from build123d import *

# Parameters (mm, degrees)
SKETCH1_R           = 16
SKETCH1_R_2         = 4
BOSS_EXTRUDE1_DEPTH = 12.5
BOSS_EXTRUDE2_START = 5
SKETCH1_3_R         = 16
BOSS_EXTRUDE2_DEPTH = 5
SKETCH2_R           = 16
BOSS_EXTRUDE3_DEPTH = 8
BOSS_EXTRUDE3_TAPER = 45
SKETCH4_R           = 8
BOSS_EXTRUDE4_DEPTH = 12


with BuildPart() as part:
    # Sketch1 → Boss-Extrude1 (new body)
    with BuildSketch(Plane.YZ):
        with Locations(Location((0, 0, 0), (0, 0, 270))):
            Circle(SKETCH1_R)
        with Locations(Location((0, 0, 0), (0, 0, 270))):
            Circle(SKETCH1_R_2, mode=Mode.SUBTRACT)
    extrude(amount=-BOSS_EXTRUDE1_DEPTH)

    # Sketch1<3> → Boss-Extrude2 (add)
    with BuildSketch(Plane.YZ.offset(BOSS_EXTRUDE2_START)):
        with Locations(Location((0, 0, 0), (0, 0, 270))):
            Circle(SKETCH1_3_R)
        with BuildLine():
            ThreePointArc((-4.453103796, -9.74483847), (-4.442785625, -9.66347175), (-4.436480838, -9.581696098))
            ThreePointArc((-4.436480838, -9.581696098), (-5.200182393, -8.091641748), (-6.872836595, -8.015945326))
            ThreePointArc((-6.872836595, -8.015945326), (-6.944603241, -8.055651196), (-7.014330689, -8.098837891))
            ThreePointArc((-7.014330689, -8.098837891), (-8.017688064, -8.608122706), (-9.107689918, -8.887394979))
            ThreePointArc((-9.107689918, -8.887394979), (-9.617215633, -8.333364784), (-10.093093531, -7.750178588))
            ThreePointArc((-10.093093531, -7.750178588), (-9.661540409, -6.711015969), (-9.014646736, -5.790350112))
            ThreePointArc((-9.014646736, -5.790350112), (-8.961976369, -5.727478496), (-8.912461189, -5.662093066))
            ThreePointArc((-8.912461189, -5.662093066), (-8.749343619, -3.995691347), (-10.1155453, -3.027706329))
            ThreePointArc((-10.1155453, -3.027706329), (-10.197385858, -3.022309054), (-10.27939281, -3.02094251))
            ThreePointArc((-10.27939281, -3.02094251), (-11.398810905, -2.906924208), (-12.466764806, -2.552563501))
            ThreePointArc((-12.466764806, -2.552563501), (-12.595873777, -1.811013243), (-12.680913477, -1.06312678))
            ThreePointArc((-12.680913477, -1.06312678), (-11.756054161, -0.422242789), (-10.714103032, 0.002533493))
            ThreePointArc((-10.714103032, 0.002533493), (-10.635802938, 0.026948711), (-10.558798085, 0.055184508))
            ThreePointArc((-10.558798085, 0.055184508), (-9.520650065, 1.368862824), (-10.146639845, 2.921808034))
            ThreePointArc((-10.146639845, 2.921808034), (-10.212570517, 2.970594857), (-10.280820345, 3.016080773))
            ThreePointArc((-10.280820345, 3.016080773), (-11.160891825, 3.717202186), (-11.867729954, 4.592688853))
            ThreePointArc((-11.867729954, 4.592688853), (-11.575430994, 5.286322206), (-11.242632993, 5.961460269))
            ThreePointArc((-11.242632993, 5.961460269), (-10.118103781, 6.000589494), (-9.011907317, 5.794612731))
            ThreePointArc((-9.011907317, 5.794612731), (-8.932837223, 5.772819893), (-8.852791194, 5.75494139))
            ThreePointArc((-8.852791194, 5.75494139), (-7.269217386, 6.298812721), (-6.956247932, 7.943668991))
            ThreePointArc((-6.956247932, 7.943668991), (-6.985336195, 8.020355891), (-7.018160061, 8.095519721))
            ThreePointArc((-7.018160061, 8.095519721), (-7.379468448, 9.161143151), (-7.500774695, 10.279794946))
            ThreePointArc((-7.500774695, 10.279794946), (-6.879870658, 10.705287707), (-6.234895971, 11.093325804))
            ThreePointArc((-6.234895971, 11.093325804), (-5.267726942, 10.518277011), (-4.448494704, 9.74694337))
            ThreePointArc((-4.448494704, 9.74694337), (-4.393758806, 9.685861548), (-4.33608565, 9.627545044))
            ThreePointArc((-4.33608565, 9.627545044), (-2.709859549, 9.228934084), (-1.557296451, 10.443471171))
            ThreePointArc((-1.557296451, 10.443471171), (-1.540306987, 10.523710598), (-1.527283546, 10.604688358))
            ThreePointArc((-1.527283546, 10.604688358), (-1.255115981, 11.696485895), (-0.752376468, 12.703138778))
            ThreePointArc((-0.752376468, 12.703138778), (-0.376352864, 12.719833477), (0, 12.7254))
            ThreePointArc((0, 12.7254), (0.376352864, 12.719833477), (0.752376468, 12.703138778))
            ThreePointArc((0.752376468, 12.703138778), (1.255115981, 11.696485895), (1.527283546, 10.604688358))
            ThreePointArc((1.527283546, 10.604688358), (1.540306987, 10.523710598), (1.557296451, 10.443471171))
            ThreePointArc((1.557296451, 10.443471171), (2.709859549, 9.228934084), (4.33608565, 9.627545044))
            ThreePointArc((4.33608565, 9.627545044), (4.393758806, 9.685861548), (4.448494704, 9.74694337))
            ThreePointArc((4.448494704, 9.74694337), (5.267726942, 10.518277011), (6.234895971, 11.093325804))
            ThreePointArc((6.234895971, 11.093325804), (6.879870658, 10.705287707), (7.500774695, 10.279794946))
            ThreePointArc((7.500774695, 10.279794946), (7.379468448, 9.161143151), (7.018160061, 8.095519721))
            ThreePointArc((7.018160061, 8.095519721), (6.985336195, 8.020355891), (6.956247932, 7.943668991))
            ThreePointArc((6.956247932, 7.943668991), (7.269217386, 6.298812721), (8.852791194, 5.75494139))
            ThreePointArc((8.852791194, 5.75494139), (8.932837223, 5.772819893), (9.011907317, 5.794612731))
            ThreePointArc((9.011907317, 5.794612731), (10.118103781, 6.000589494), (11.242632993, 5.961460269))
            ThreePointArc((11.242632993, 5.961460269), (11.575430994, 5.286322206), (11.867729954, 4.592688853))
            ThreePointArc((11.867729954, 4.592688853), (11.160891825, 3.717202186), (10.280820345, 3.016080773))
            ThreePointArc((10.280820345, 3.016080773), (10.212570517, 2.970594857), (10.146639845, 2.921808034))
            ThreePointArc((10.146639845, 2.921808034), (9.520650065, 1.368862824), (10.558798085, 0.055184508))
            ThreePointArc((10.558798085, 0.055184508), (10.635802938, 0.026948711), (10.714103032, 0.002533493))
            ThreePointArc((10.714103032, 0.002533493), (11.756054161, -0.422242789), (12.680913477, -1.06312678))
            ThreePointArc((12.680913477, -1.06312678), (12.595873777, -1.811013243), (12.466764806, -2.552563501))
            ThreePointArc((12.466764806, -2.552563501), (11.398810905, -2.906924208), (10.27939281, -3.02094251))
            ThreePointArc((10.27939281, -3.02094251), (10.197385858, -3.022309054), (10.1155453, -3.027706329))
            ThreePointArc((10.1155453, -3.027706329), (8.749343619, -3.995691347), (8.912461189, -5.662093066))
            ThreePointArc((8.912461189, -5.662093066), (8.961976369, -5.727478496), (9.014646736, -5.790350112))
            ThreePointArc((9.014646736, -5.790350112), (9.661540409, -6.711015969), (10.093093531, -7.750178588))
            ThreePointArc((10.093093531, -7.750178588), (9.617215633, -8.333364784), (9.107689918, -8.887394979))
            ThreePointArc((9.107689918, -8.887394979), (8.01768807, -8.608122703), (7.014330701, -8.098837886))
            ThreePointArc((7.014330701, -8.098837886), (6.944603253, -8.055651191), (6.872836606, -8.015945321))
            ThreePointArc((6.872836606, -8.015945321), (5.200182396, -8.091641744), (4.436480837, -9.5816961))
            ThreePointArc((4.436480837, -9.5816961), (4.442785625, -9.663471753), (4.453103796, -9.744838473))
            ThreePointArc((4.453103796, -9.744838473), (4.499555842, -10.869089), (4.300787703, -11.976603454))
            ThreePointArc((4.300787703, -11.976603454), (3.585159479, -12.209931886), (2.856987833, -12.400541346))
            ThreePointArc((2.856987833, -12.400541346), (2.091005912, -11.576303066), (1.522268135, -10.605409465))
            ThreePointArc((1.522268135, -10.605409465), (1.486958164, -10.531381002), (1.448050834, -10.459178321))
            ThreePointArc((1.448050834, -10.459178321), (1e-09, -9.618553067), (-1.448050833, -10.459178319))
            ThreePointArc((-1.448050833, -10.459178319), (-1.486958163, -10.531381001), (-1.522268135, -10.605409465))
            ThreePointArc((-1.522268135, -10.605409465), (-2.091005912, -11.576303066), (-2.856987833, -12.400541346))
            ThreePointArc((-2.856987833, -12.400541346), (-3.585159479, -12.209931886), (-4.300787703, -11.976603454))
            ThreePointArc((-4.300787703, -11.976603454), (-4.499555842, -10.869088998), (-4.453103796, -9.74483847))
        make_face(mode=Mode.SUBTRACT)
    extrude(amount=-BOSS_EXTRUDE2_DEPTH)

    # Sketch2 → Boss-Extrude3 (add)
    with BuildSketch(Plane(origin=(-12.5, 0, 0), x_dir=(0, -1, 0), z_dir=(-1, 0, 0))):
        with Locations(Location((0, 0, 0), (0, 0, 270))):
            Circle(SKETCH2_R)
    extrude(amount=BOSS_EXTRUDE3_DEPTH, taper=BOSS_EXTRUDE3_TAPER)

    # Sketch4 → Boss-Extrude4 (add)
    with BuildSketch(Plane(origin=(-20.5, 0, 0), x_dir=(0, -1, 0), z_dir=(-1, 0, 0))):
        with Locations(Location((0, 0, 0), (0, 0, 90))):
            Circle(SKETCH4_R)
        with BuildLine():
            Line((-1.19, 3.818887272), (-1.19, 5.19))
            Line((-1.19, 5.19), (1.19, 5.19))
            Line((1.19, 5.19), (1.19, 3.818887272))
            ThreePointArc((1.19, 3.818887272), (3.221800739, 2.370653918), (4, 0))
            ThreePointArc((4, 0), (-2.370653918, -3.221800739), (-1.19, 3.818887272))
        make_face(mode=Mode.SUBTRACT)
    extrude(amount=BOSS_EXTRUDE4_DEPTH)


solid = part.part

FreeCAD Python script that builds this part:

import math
import FreeCAD as App
import Part
import Sketcher
from FreeCAD import Vector
Q = App.Units.Quantity

doc = App.newDocument("Part")
body = doc.addObject("PartDesign::Body", "Body")

# Sketch on YZ plane
sketch1 = body.newObject("Sketcher::SketchObject", "Sketch")
sketch1.AttachmentSupport = (doc.getObject("YZ_Plane"), [""])
sketch1.MapMode = "FlatFace"
sketch1.addGeometry([
    Part.Circle(Vector(0, 0, 0), Vector(0, 0, 1), 16),
    Part.Circle(Vector(0, 0, 0), Vector(0, 0, 1), 4),
], False)
sketch1.addConstraint([
    Sketcher.Constraint("Coincident", 0, 3, -1, 1),
    Sketcher.Constraint("Coincident", 1, 3, -1, 1),
    Sketcher.Constraint("Diameter", 0, Q("32 mm")),
    Sketcher.Constraint("Diameter", 1, Q("8 mm")),
])
pad1 = body.newObject("PartDesign::Pad", "Pad")
pad1.Profile = sketch1
pad1.Length = 12.5
pad1.Reversed = True

# Sketch on YZ plane
sketch2 = body.newObject("Sketcher::SketchObject", "Sketch001")
sketch2.AttachmentSupport = (doc.getObject("YZ_Plane"), [""])
sketch2.MapMode = "FlatFace"
sketch2.AttachmentOffset = App.Placement(Vector(0, 0, 5), App.Rotation())
sketch2.addGeometry([
    Part.Circle(Vector(0, 0, 0), Vector(0, 0, 1), 16),  # 0
    Part.ArcOfCircle(Part.Circle(Vector(0.64, -10.52, 0), Vector(0, 0, 1), 5.15), math.radians(171), math.radians(196)),  # 1
    Part.ArcOfCircle(Part.Circle(Vector(-6.1, -9.49, 0), Vector(0, 0, 1), 1.67), math.radians(-8.64), math.radians(-3)),  # 2
    Part.ArcOfCircle(Part.Circle(Vector(-6.1, -9.49, 0), Vector(0, 0, 1), 1.67), math.radians(-3), math.radians(118)),  # 3
    Part.ArcOfCircle(Part.Circle(Vector(-6.1, -9.49, 0), Vector(0, 0, 1), 1.67), math.radians(117.54), math.radians(123.18)),  # 4
    Part.ArcOfCircle(Part.Circle(Vector(-9.83, -3.79, 0), Vector(0, 0, 1), 5.15), math.radians(-82), math.radians(-57)),  # 5
    Part.ArcOfCircle(Part.Circle(Vector(0, 0, 0), Vector(0, 0, 1), 12.73), math.radians(-142.48), math.radians(-135.7)),  # 6
    Part.ArcOfCircle(Part.Circle(Vector(-5.15, -9.19, 0), Vector(0, 0, 1), 5.15), math.radians(139), math.radians(164)),  # 7
    Part.ArcOfCircle(Part.Circle(Vector(-10.27, -4.69, 0), Vector(0, 0, 1), 1.67), math.radians(-41.36), math.radians(-35.73)),  # 8
    Part.ArcOfCircle(Part.Circle(Vector(-10.27, -4.69, 0), Vector(0, 0, 1), 1.67), math.radians(-36), math.radians(85)),  # 9
    Part.ArcOfCircle(Part.Circle(Vector(-10.27, -4.69, 0), Vector(0, 0, 1), 1.67), math.radians(84.82), math.radians(90.45)),  # 10
    Part.ArcOfCircle(Part.Circle(Vector(-10.32, 2.13, 0), Vector(0, 0, 1), 5.15), math.radians(-115), math.radians(-90)),  # 11
    Part.ArcOfCircle(Part.Circle(Vector(0, 0, 0), Vector(0, 0, 1), 12.73), math.radians(-175.21), math.radians(-168.43)),  # 12
    Part.ArcOfCircle(Part.Circle(Vector(-9.3, -4.95, 0), Vector(0, 0, 1), 5.15), math.radians(106), math.radians(131)),  # 13
    Part.ArcOfCircle(Part.Circle(Vector(-11.17, 1.61, 0), Vector(0, 0, 1), 1.67), math.radians(-74.09), math.radians(-68.45)),  # 14
    Part.ArcOfCircle(Part.Circle(Vector(-11.17, 1.61, 0), Vector(0, 0, 1), 1.67), math.radians(-68), math.radians(52)),  # 15
    Part.ArcOfCircle(Part.Circle(Vector(-11.17, 1.61, 0), Vector(0, 0, 1), 1.67), math.radians(52.09), math.radians(57.73)),  # 16
    Part.ArcOfCircle(Part.Circle(Vector(-7.53, 7.37, 0), Vector(0, 0, 1), 5.15), math.radians(-147), math.radians(-122)),  # 17
    Part.ArcOfCircle(Part.Circle(Vector(0, 0, 0), Vector(0, 0, 1), 12.73), math.radians(152.07), math.radians(158.84)),  # 18
    Part.ArcOfCircle(Part.Circle(Vector(-10.5, 0.86, 0), Vector(0, 0, 1), 5.15), math.radians(73), math.radians(98)),  # 19
    Part.ArcOfCircle(Part.Circle(Vector(-8.53, 7.39, 0), Vector(0, 0, 1), 1.67), math.radians(-106.82), math.radians(-101.18)),  # 20
    Part.ArcOfCircle(Part.Circle(Vector(-8.53, 7.39, 0), Vector(0, 0, 1), 1.67), math.radians(-101), math.radians(19)),  # 21
    Part.ArcOfCircle(Part.Circle(Vector(-8.53, 7.39, 0), Vector(0, 0, 1), 1.67), math.radians(19.36), math.radians(25)),  # 22
    Part.ArcOfCircle(Part.Circle(Vector(-2.35, 10.27, 0), Vector(0, 0, 1), 5.15), math.radians(180), math.radians(205)),  # 23
    Part.ArcOfCircle(Part.Circle(Vector(0, 0, 0), Vector(0, 0, 1), 12.73), math.radians(119.34), math.radians(126.12)),  # 24
    Part.ArcOfCircle(Part.Circle(Vector(-8.37, 6.4, 0), Vector(0, 0, 1), 5.15), math.radians(40), math.radians(66)),  # 25
    Part.ArcOfCircle(Part.Circle(Vector(-3.18, 10.83, 0), Vector(0, 0, 1), 1.67), math.radians(-139.55), math.radians(-133.91)),  # 26
    Part.ArcOfCircle(Part.Circle(Vector(-3.18, 10.83, 0), Vector(0, 0, 1), 1.67), math.radians(-134), math.radians(-13)),  # 27
    Part.ArcOfCircle(Part.Circle(Vector(-3.18, 10.83, 0), Vector(0, 0, 1), 1.67), math.radians(-13.36), math.radians(-7.73)),  # 28
    Part.ArcOfCircle(Part.Circle(Vector(3.58, 9.91, 0), Vector(0, 0, 1), 5.15), math.radians(147), math.radians(172)),  # 29
    Part.ArcOfCircle(Part.Circle(Vector(0, 0, 0), Vector(0, 0, 1), 12.73), math.radians(90), math.radians(93.39)),  # 30
    Part.ArcOfCircle(Part.Circle(Vector(0, 0, 0), Vector(0, 0, 1), 12.73), math.radians(86.61), math.radians(90)),  # 31
    Part.ArcOfCircle(Part.Circle(Vector(-3.58, 9.91, 0), Vector(0, 0, 1), 5.15), math.radians(8), math.radians(33)),  # 32
    Part.ArcOfCircle(Part.Circle(Vector(3.18, 10.83, 0), Vector(0, 0, 1), 1.67), math.radians(-172.27), math.radians(-166.64)),  # 33
    Part.ArcOfCircle(Part.Circle(Vector(3.18, 10.83, 0), Vector(0, 0, 1), 1.67), math.radians(-167), math.radians(-46)),  # 34
    Part.ArcOfCircle(Part.Circle(Vector(3.18, 10.83, 0), Vector(0, 0, 1), 1.67), math.radians(-46.09), math.radians(-40.45)),  # 35
    Part.ArcOfCircle(Part.Circle(Vector(8.37, 6.4, 0), Vector(0, 0, 1), 5.15), math.radians(114), math.radians(140)),  # 36
    Part.ArcOfCircle(Part.Circle(Vector(0, 0, 0), Vector(0, 0, 1), 12.73), math.radians(53.88), math.radians(60.66)),  # 37
    Part.ArcOfCircle(Part.Circle(Vector(2.35, 10.27, 0), Vector(0, 0, 1), 5.15), math.radians(-25), math.radians(0)),  # 38
    Part.ArcOfCircle(Part.Circle(Vector(8.53, 7.39, 0), Vector(0, 0, 1), 1.67), math.radians(155), math.radians(160.64)),  # 39
    Part.ArcOfCircle(Part.Circle(Vector(8.53, 7.39, 0), Vector(0, 0, 1), 1.67), math.radians(161), math.radians(281)),  # 40
    Part.ArcOfCircle(Part.Circle(Vector(8.53, 7.39, 0), Vector(0, 0, 1), 1.67), math.radians(-78.82), math.radians(-73.18)),  # 41
    Part.ArcOfCircle(Part.Circle(Vector(10.5, 0.86, 0), Vector(0, 0, 1), 5.15), math.radians(82), math.radians(107)),  # 42
    Part.ArcOfCircle(Part.Circle(Vector(0, 0, 0), Vector(0, 0, 1), 12.73), math.radians(21.16), math.radians(27.93)),  # 43
    Part.ArcOfCircle(Part.Circle(Vector(7.53, 7.37, 0), Vector(0, 0, 1), 5.15), math.radians(-58), math.radians(-33)),  # 44
    Part.ArcOfCircle(Part.Circle(Vector(11.17, 1.61, 0), Vector(0, 0, 1), 1.67), math.radians(122.27), math.radians(127.91)),  # 45
    Part.ArcOfCircle(Part.Circle(Vector(11.17, 1.61, 0), Vector(0, 0, 1), 1.67), math.radians(128), math.radians(248)),  # 46
    Part.ArcOfCircle(Part.Circle(Vector(11.17, 1.61, 0), Vector(0, 0, 1), 1.67), math.radians(-111.55), math.radians(-105.91)),  # 47
    Part.ArcOfCircle(Part.Circle(Vector(9.3, -4.95, 0), Vector(0, 0, 1), 5.15), math.radians(49), math.radians(74)),  # 48
    Part.ArcOfCircle(Part.Circle(Vector(0, 0, 0), Vector(0, 0, 1), 12.73), math.radians(-11.57), math.radians(-4.79)),  # 49
    Part.ArcOfCircle(Part.Circle(Vector(10.32, 2.13, 0), Vector(0, 0, 1), 5.15), math.radians(-90), math.radians(-65)),  # 50
    Part.ArcOfCircle(Part.Circle(Vector(10.27, -4.69, 0), Vector(0, 0, 1), 1.67), math.radians(89.55), math.radians(95.18)),  # 51
    Part.ArcOfCircle(Part.Circle(Vector(10.27, -4.69, 0), Vector(0, 0, 1), 1.67), math.radians(95), math.radians(216)),  # 52
    Part.ArcOfCircle(Part.Circle(Vector(10.27, -4.69, 0), Vector(0, 0, 1), 1.67), math.radians(-144.27), math.radians(-138.64)),  # 53
    Part.ArcOfCircle(Part.Circle(Vector(5.15, -9.19, 0), Vector(0, 0, 1), 5.15), math.radians(16), math.radians(41)),  # 54
    Part.ArcOfCircle(Part.Circle(Vector(0, 0, 0), Vector(0, 0, 1), 12.73), math.radians(-44.3), math.radians(-37.52)),  # 55
    Part.ArcOfCircle(Part.Circle(Vector(9.83, -3.79, 0), Vector(0, 0, 1), 5.15), math.radians(-123), math.radians(-98)),  # 56
    Part.ArcOfCircle(Part.Circle(Vector(6.1, -9.49, 0), Vector(0, 0, 1), 1.67), math.radians(56.82), math.radians(62.46)),  # 57
    Part.ArcOfCircle(Part.Circle(Vector(6.1, -9.49, 0), Vector(0, 0, 1), 1.67), math.radians(62), math.radians(183)),  # 58
    Part.ArcOfCircle(Part.Circle(Vector(6.1, -9.49, 0), Vector(0, 0, 1), 1.67), math.radians(-177), math.radians(-171.36)),  # 59
    Part.ArcOfCircle(Part.Circle(Vector(-0.64, -10.52, 0), Vector(0, 0, 1), 5.15), math.radians(-16), math.radians(9)),  # 60
    Part.ArcOfCircle(Part.Circle(Vector(0, 0, 0), Vector(0, 0, 1), 12.73), math.radians(-77.03), math.radians(-70.25)),  # 61
    Part.ArcOfCircle(Part.Circle(Vector(6.22, -8.5, 0), Vector(0, 0, 1), 5.15), math.radians(-156), math.radians(-131)),  # 62
    Part.ArcOfCircle(Part.Circle(Vector(0, -11.29, 0), Vector(0, 0, 1), 1.67), math.radians(24.09), math.radians(29.73)),  # 63
    Part.ArcOfCircle(Part.Circle(Vector(0, -11.29, 0), Vector(0, 0, 1), 1.67), math.radians(30), math.radians(150)),  # 64
    Part.ArcOfCircle(Part.Circle(Vector(0, -11.29, 0), Vector(0, 0, 1), 1.67), math.radians(150.27), math.radians(155.91)),  # 65
    Part.ArcOfCircle(Part.Circle(Vector(-6.22, -8.5, 0), Vector(0, 0, 1), 5.15), math.radians(-49), math.radians(-24)),  # 66
    Part.ArcOfCircle(Part.Circle(Vector(0, 0, 0), Vector(0, 0, 1), 12.73), math.radians(-109.75), math.radians(-102.97)),  # 67
], False)
sketch2.addConstraint([
    Sketcher.Constraint("Tangent", 1, 1, 2, 1),
    Sketcher.Constraint("Tangent", 2, 2, 3, 1),
    Sketcher.Constraint("Tangent", 3, 2, 4, 1),
    Sketcher.Constraint("Tangent", 4, 2, 5, 2),
    Sketcher.Constraint("Coincident", 5, 1, 6, 2),
    Sketcher.Constraint("Coincident", 6, 1, 7, 2),
    Sketcher.Constraint("Tangent", 7, 1, 8, 1),
    Sketcher.Constraint("Tangent", 8, 2, 9, 1),
    Sketcher.Constraint("Tangent", 9, 2, 10, 1),
    Sketcher.Constraint("Tangent", 10, 2, 11, 2),
    Sketcher.Constraint("Coincident", 11, 1, 12, 2),
    Sketcher.Constraint("Coincident", 12, 1, 13, 2),
    Sketcher.Constraint("Tangent", 13, 1, 14, 1),
    Sketcher.Constraint("Tangent", 14, 2, 15, 1),
    Sketcher.Constraint("Tangent", 15, 2, 16, 1),
    Sketcher.Constraint("Tangent", 16, 2, 17, 2),
    Sketcher.Constraint("Coincident", 17, 1, 18, 2),
    Sketcher.Constraint("Coincident", 18, 1, 19, 2),
    Sketcher.Constraint("Tangent", 19, 1, 20, 1),
    Sketcher.Constraint("Tangent", 20, 2, 21, 1),
    Sketcher.Constraint("Tangent", 21, 2, 22, 1),
    Sketcher.Constraint("Tangent", 22, 2, 23, 2),
    Sketcher.Constraint("Coincident", 23, 1, 24, 2),
    Sketcher.Constraint("Coincident", 24, 1, 25, 2),
    Sketcher.Constraint("Tangent", 25, 1, 26, 1),
    Sketcher.Constraint("Tangent", 26, 2, 27, 1),
    Sketcher.Constraint("Tangent", 27, 2, 28, 1),
    Sketcher.Constraint("Tangent", 28, 2, 29, 2),
    Sketcher.Constraint("Coincident", 29, 1, 30, 2),
    Sketcher.Constraint("Tangent", 30, 1, 31, 2),
    Sketcher.Constraint("Coincident", 31, 1, 32, 2),
    Sketcher.Constraint("Tangent", 32, 1, 33, 1),
    Sketcher.Constraint("Tangent", 33, 2, 34, 1),
    Sketcher.Constraint("Tangent", 34, 2, 35, 1),
    Sketcher.Constraint("Tangent", 35, 2, 36, 2),
    Sketcher.Constraint("Coincident", 36, 1, 37, 2),
    Sketcher.Constraint("Coincident", 37, 1, 38, 2),
    Sketcher.Constraint("Tangent", 38, 1, 39, 1),
    Sketcher.Constraint("Tangent", 39, 2, 40, 1),
    Sketcher.Constraint("Tangent", 40, 2, 41, 1),
    Sketcher.Constraint("Tangent", 41, 2, 42, 2),
    Sketcher.Constraint("Coincident", 42, 1, 43, 2),
    Sketcher.Constraint("Coincident", 43, 1, 44, 2),
    Sketcher.Constraint("Tangent", 44, 1, 45, 1),
    Sketcher.Constraint("Tangent", 45, 2, 46, 1),
    Sketcher.Constraint("Tangent", 46, 2, 47, 1),
    Sketcher.Constraint("Tangent", 47, 2, 48, 2),
    Sketcher.Constraint("Coincident", 48, 1, 49, 2),
    Sketcher.Constraint("Coincident", 49, 1, 50, 2),
    Sketcher.Constraint("Tangent", 50, 1, 51, 1),
    Sketcher.Constraint("Tangent", 51, 2, 52, 1),
    Sketcher.Constraint("Tangent", 52, 2, 53, 1),
    Sketcher.Constraint("Tangent", 53, 2, 54, 2),
    Sketcher.Constraint("Coincident", 54, 1, 55, 2),
    Sketcher.Constraint("Coincident", 55, 1, 56, 2),
    Sketcher.Constraint("Tangent", 56, 1, 57, 1),
    Sketcher.Constraint("Tangent", 57, 2, 58, 1),
    Sketcher.Constraint("Tangent", 58, 2, 59, 1),
    Sketcher.Constraint("Tangent", 59, 2, 60, 2),
    Sketcher.Constraint("Coincident", 60, 1, 61, 2),
    Sketcher.Constraint("Coincident", 61, 1, 62, 2),
    Sketcher.Constraint("Tangent", 62, 1, 63, 1),
    Sketcher.Constraint("Tangent", 63, 2, 64, 1),
    Sketcher.Constraint("Tangent", 64, 2, 65, 1),
    Sketcher.Constraint("Tangent", 65, 2, 66, 2),
    Sketcher.Constraint("Coincident", 66, 1, 67, 2),
    Sketcher.Constraint("Coincident", 67, 1, 1, 2),
    Sketcher.Constraint("Coincident", 0, 3, -1, 1),
    Sketcher.Constraint("Coincident", 6, 3, -1, 1),
    Sketcher.Constraint("Coincident", 12, 3, -1, 1),
    Sketcher.Constraint("Coincident", 18, 3, -1, 1),
    Sketcher.Constraint("Coincident", 24, 3, -1, 1),
    Sketcher.Constraint("Coincident", 30, 3, -1, 1),
    Sketcher.Constraint("Coincident", 37, 3, -1, 1),
    Sketcher.Constraint("Coincident", 43, 3, -1, 1),
    Sketcher.Constraint("Coincident", 49, 3, -1, 1),
    Sketcher.Constraint("Coincident", 55, 3, -1, 1),
    Sketcher.Constraint("Coincident", 61, 3, -1, 1),
    Sketcher.Constraint("Coincident", 67, 3, -1, 1),
    Sketcher.Constraint("Coincident", 4, 3, 2, 3),
    Sketcher.Constraint("Coincident", 10, 3, 8, 3),
    Sketcher.Constraint("Coincident", 16, 3, 14, 3),
    Sketcher.Constraint("Coincident", 22, 3, 20, 3),
    Sketcher.Constraint("Coincident", 28, 3, 26, 3),
    Sketcher.Constraint("Coincident", 35, 3, 33, 3),
    Sketcher.Constraint("Coincident", 41, 3, 39, 3),
    Sketcher.Constraint("Coincident", 47, 3, 45, 3),
    Sketcher.Constraint("Coincident", 53, 3, 51, 3),
    Sketcher.Constraint("Coincident", 59, 3, 57, 3),
    Sketcher.Constraint("Coincident", 65, 3, 63, 3),
    Sketcher.Constraint("Equal", 1, 5),
    Sketcher.Constraint("Equal", 5, 7),
    Sketcher.Constraint("Equal", 4, 8),
    Sketcher.Constraint("Equal", 7, 11),
    Sketcher.Constraint("Equal", 6, 12),
    Sketcher.Constraint("Equal", 11, 13),
    Sketcher.Constraint("Equal", 10, 14),
    Sketcher.Constraint("Equal", 13, 17),
    Sketcher.Constraint("Equal", 12, 18),
    Sketcher.Constraint("Equal", 17, 19),
    Sketcher.Constraint("Equal", 16, 20),
    Sketcher.Constraint("Equal", 19, 23),
    Sketcher.Constraint("Equal", 18, 24),
    Sketcher.Constraint("Equal", 23, 25),
    Sketcher.Constraint("Equal", 22, 26),
    Sketcher.Constraint("Equal", 25, 29),
    Sketcher.Constraint("Equal", 24, 30),
    Sketcher.Constraint("Equal", 30, 31),
    Sketcher.Constraint("Equal", 29, 32),
    Sketcher.Constraint("Equal", 28, 33),
    Sketcher.Constraint("Equal", 32, 36),
    Sketcher.Constraint("Equal", 31, 37),
    Sketcher.Constraint("Equal", 36, 38),
    Sketcher.Constraint("Equal", 35, 39),
    Sketcher.Constraint("Equal", 38, 42),
    Sketcher.Constraint("Equal", 37, 43),
    Sketcher.Constraint("Equal", 42, 44),
    Sketcher.Constraint("Equal", 41, 45),
    Sketcher.Constraint("Equal", 44, 48),
    Sketcher.Constraint("Equal", 43, 49),
    Sketcher.Constraint("Equal", 48, 50),
    Sketcher.Constraint("Equal", 47, 51),
    Sketcher.Constraint("Equal", 50, 54),
    Sketcher.Constraint("Equal", 49, 55),
    Sketcher.Constraint("Equal", 54, 56),
    Sketcher.Constraint("Equal", 53, 57),
    Sketcher.Constraint("Equal", 56, 60),
    Sketcher.Constraint("Equal", 55, 61),
    Sketcher.Constraint("Equal", 60, 62),
    Sketcher.Constraint("Equal", 59, 63),
    Sketcher.Constraint("Equal", 62, 66),
    Sketcher.Constraint("Equal", 61, 67),
    Sketcher.Constraint("Symmetric", 29, 3, 32, 3, -2),
    Sketcher.Constraint("Symmetric", 25, 3, 36, 3, -2),
    Sketcher.Constraint("Symmetric", 23, 3, 38, 3, -2),
    Sketcher.Constraint("Symmetric", 19, 3, 42, 3, -2),
    Sketcher.Constraint("Symmetric", 17, 3, 44, 3, -2),
    Sketcher.Constraint("Symmetric", 13, 3, 48, 3, -2),
    Sketcher.Constraint("Symmetric", 11, 3, 50, 3, -2),
    Sketcher.Constraint("Symmetric", 7, 3, 54, 3, -2),
    Sketcher.Constraint("Symmetric", 5, 3, 56, 3, -2),
    Sketcher.Constraint("Symmetric", 1, 3, 60, 3, -2),
    Sketcher.Constraint("Symmetric", 62, 3, 66, 3, -2),
    Sketcher.Constraint("PointOnObject", 30, 1, -2),
    Sketcher.Constraint("Horizontal", 27, 2, 33, 2),
    Sketcher.Constraint("Horizontal", 26, 2, 34, 2),
    Sketcher.Constraint("Horizontal", 21, 2, 39, 2),
    Sketcher.Constraint("Horizontal", 20, 2, 40, 2),
    Sketcher.Constraint("Horizontal", 15, 2, 45, 2),
    Sketcher.Constraint("Horizontal", 14, 2, 46, 2),
    Sketcher.Constraint("Horizontal", 9, 2, 51, 2),
    Sketcher.Constraint("Horizontal", 8, 2, 52, 2),
    Sketcher.Constraint("Horizontal", 3, 2, 57, 2),
    Sketcher.Constraint("Horizontal", 2, 2, 58, 2),
    Sketcher.Constraint("Horizontal", 63, 2, 64, 2),
    Sketcher.Constraint("Diameter", 0, Q("32 mm")),
    Sketcher.Constraint("Radius", 6, Q("12.7254 mm")),
    Sketcher.Constraint("Radius", 1, Q("5.15112 mm")),
    Sketcher.Constraint("Radius", 2, Q("1.66751 mm")),
    Sketcher.Constraint("DistanceY", 8, 3, -1, 1, Q("4.6884 mm")),
    Sketcher.Constraint("DistanceY", -1, 1, 20, 3, Q("7.3908 mm")),
    Sketcher.Constraint("DistanceY", -1, 1, 26, 3, Q("10.828898 mm")),
    Sketcher.Constraint("DistanceX", 14, 2, -1, 1, Q("10.558798 mm")),
    Sketcher.Constraint("DistanceX", -1, 1, 1, 3, Q("0.639609 mm")),
    Sketcher.Constraint("DistanceY", 2, 3, -1, 1, Q("9.49444 mm")),
    Sketcher.Constraint("DistanceY", 5, 3, -1, 1, Q("3.78767 mm")),
    Sketcher.Constraint("DistanceX", 13, 3, -1, 1, Q("9.30212 mm")),
    Sketcher.Constraint("DistanceX", 17, 3, -1, 1, Q("7.53038 mm")),
    Sketcher.Constraint("DistanceX", 19, 3, -1, 1, Q("10.50231 mm")),
    Sketcher.Constraint("DistanceX", 23, 3, -1, 1, Q("2.34966 mm")),
    Sketcher.Constraint("DistanceX", 25, 3, -1, 1, Q("8.36809 mm")),
    Sketcher.Constraint("DistanceX", 26, 3, -1, 1, Q("3.179651 mm")),
    Sketcher.Constraint("DistanceX", -1, 1, 29, 3, Q("3.577061 mm")),
    Sketcher.Constraint("DistanceX", -1, 1, 62, 3, Q("6.22472 mm")),
    Sketcher.Constraint("DistanceY", 1, 1, -1, 1, Q("9.744838 mm")),
    Sketcher.Constraint("DistanceX", 2, 2, -1, 1, Q("4.436481 mm")),
    Sketcher.Constraint("DistanceY", 6, 1, -1, 1, Q("7.750179 mm")),
    Sketcher.Constraint("DistanceY", 7, 1, -1, 1, Q("5.79035 mm")),
    Sketcher.Constraint("DistanceX", 8, 2, -1, 1, Q("8.912461 mm")),
    Sketcher.Constraint("DistanceX", 15, 2, -1, 1, Q("10.14664 mm")),
    Sketcher.Constraint("DistanceY", -1, 1, 15, 2, Q("2.921808 mm")),
    Sketcher.Constraint("DistanceX", 16, 2, -1, 1, Q("10.28082 mm")),
    Sketcher.Constraint("DistanceY", -1, 1, 18, 1, Q("5.96146 mm")),
    Sketcher.Constraint("DistanceX", 20, 2, -1, 1, Q("8.852791 mm")),
    Sketcher.Constraint("DistanceY", -1, 1, 21, 2, Q("7.943669 mm")),
    Sketcher.Constraint("DistanceY", -1, 1, 27, 2, Q("10.443471 mm")),
    Sketcher.Constraint("DistanceY", 61, 1, -1, 1, Q("12.400541 mm")),
    Sketcher.Constraint("DistanceX", -1, 1, 63, 2, Q("1.448051 mm")),
    Sketcher.Constraint("DistanceX", 11, 3, -1, 1, Q("10.320258 mm")),
    Sketcher.Constraint("DistanceX", 3, 2, -1, 1, Q("6.872837 mm")),
    Sketcher.Constraint("DistanceX", 9, 2, -1, 1, Q("10.115545 mm")),
    Sketcher.Constraint("DistanceX", 26, 2, -1, 1, Q("4.336086 mm")),
])
pad2 = body.newObject("PartDesign::Pad", "Pad001")
pad2.Profile = sketch2
pad2.Length = 5
pad2.Reversed = True

# Sketch on YZ plane
sketch3 = body.newObject("Sketcher::SketchObject", "Sketch002")
sketch3.AttachmentSupport = (doc.getObject("YZ_Plane"), [""])
sketch3.MapMode = "FlatFace"
sketch3.AttachmentOffset = App.Placement(Vector(0, 0, -12.5), App.Rotation())
sketch3.addGeometry(Part.Circle(Vector(0, 0, 0), Vector(0, 0, 1), 16), False)
sketch3.addConstraint([
    Sketcher.Constraint("Coincident", 0, 3, -1, 1),
    Sketcher.Constraint("Diameter", 0, Q("32 mm")),
])
pad3 = body.newObject("PartDesign::Pad", "Pad002")
pad3.Profile = sketch3
pad3.Length = 8
pad3.Reversed = True
pad3.TaperAngle = -45

# Sketch on YZ plane
sketch4 = body.newObject("Sketcher::SketchObject", "Sketch003")
sketch4.AttachmentSupport = (doc.getObject("YZ_Plane"), [""])
sketch4.MapMode = "FlatFace"
sketch4.AttachmentOffset = App.Placement(Vector(0, 0, -20.5), App.Rotation())
sketch4.addGeometry([
    Part.Circle(Vector(0, 0, 0), Vector(0, 0, 1), 8),  # 0
    Part.ArcOfCircle(Part.Circle(Vector(0, 0, 0), Vector(0, 0, 1), 4), math.radians(180), math.radians(433)),  # 1
    Part.LineSegment(Vector(1.2, 3.8, 0), Vector(1.2, 5.2, 0)),  # 2
    Part.LineSegment(Vector(1.2, 5.2, 0), Vector(-1.2, 5.2, 0)),  # 3
    Part.LineSegment(Vector(-1.2, 5.2, 0), Vector(-1.2, 3.8, 0)),  # 4
    Part.ArcOfCircle(Part.Circle(Vector(0, 0, 0), Vector(0, 0, 1), 4), math.radians(107), math.radians(180)),  # 5
], False)
sketch4.addConstraint([
    Sketcher.Constraint("Coincident", 1, 2, 2, 1),
    Sketcher.Constraint("Coincident", 2, 2, 3, 1),
    Sketcher.Constraint("Coincident", 3, 2, 4, 1),
    Sketcher.Constraint("Coincident", 4, 2, 5, 1),
    Sketcher.Constraint("Tangent", 5, 2, 1, 1),
    Sketcher.Constraint("Vertical", 2),
    Sketcher.Constraint("Horizontal", 3),
    Sketcher.Constraint("Vertical", 4),
    Sketcher.Constraint("Coincident", 0, 3, -1, 1),
    Sketcher.Constraint("Coincident", 1, 3, -1, 1),
    Sketcher.Constraint("Equal", 1, 5),
    Sketcher.Constraint("PointOnObject", 5, 2, -1),
    Sketcher.Constraint("Horizontal", 1, 2, 4, 2),
    Sketcher.Constraint("Diameter", 0, Q("16 mm")),
    Sketcher.Constraint("Radius", 1, Q("4 mm")),
    Sketcher.Constraint("DistanceX", 3, 2, 3, 1, Q("2.38 mm")),
    Sketcher.Constraint("DistanceY", -1, 1, 2, 2, Q("5.19 mm")),
])
pad4 = body.newObject("PartDesign::Pad", "Pad003")
pad4.Profile = sketch4
pad4.Length = 12
pad4.Reversed = True

doc.recompute()
